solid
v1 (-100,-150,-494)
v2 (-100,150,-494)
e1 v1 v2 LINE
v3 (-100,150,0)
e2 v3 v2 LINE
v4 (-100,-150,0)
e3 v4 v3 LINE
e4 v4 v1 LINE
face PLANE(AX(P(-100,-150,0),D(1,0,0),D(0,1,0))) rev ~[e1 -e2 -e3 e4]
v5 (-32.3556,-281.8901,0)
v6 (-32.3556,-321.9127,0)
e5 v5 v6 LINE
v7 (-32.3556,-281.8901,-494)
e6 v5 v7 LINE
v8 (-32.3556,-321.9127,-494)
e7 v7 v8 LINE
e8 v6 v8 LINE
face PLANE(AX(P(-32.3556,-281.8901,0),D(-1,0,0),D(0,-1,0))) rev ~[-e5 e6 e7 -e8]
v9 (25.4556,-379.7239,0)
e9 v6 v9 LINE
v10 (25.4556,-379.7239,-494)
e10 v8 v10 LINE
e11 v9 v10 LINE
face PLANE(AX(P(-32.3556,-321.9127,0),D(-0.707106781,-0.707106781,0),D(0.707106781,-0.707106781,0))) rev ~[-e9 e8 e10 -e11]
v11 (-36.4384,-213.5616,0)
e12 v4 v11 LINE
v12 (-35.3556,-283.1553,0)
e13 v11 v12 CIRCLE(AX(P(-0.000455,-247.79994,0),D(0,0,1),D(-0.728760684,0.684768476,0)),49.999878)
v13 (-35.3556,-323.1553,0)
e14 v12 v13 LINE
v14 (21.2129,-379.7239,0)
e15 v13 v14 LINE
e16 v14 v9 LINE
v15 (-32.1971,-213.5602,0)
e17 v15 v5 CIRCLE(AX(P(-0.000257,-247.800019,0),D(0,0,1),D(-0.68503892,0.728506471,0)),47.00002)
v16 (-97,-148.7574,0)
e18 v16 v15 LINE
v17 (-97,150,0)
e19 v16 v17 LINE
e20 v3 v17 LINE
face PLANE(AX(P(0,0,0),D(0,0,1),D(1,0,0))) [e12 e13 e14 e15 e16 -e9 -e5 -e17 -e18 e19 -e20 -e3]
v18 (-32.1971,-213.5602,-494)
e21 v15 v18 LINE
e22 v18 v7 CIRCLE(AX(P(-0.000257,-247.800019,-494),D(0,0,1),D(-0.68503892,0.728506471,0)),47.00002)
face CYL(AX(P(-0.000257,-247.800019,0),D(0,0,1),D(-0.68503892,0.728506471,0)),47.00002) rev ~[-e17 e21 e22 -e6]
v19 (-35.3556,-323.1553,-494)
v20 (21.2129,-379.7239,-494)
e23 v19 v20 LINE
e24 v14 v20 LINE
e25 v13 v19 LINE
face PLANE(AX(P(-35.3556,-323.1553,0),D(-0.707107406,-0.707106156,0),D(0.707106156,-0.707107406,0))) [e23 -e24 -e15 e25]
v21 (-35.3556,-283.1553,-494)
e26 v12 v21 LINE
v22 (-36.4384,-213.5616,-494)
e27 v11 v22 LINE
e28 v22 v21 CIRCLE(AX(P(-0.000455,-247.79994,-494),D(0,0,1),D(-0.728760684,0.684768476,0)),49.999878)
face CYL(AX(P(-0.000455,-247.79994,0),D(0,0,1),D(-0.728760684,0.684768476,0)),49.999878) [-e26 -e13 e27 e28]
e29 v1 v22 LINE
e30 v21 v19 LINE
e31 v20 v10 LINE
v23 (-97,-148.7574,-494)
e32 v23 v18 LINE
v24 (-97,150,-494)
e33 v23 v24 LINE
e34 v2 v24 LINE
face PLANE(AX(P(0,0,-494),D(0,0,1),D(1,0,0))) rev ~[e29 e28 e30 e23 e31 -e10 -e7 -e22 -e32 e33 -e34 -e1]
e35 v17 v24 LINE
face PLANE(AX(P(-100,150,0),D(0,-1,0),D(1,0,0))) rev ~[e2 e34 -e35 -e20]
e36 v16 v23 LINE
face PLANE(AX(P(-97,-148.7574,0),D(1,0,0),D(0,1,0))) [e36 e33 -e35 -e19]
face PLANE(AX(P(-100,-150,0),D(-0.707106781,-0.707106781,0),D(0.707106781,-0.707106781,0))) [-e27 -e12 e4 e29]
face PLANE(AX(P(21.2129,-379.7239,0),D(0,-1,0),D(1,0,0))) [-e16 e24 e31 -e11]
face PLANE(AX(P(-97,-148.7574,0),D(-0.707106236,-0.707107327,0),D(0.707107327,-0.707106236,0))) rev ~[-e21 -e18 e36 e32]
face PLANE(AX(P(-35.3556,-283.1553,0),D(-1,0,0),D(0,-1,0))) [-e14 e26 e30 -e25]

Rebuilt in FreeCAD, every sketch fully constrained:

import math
import FreeCAD as App
import Part
import Sketcher
Q = App.Units.Quantity

doc = App.newDocument("Part")
body = doc.addObject("PartDesign::Body", "Body")

# Sketch on XY plane
sketch1 = body.newObject("Sketcher::SketchObject", "Sketch")
sketch1.AttachmentSupport = (doc.getObject("XY_Plane"), [""])
sketch1.MapMode = "FlatFace"
sketch1.addGeometry(Part.LineSegment(App.Vector(-100, 150, 0), App.Vector(-100, -150, 0)), False)
sketch1.addGeometry(Part.LineSegment(App.Vector(-100, -150, 0), App.Vector(-36.4, -213.6, 0)), False)
sketch1.addGeometry(Part.ArcOfCircle(Part.Circle(App.Vector(0, -247.8, 0), App.Vector(0, 0, 1), 50), math.radians(137), math.radians(225)), False)
sketch1.addGeometry(Part.LineSegment(App.Vector(-35.4, -283.2, 0), App.Vector(-35.4, -323.2, 0)), False)
sketch1.addGeometry(Part.LineSegment(App.Vector(-35.4, -323.2, 0), App.Vector(21.2, -379.7, 0)), False)
sketch1.addGeometry(Part.LineSegment(App.Vector(21.2, -379.7, 0), App.Vector(25.5, -379.7, 0)), False)
sketch1.addGeometry(Part.LineSegment(App.Vector(25.5, -379.7, 0), App.Vector(-32.4, -321.9, 0)), False)
sketch1.addGeometry(Part.LineSegment(App.Vector(-32.4, -321.9, 0), App.Vector(-32.4, -281.9, 0)), False)
sketch1.addGeometry(Part.ArcOfCircle(Part.Circle(App.Vector(0, -247.8, 0), App.Vector(0, 0, 1), 47), math.radians(133), math.radians(226)), False)
sketch1.addGeometry(Part.LineSegment(App.Vector(-32.2, -213.6, 0), App.Vector(-97, -148.8, 0)), False)
sketch1.addGeometry(Part.LineSegment(App.Vector(-97, -148.8, 0), App.Vector(-97, 150, 0)), False)
sketch1.addGeometry(Part.LineSegment(App.Vector(-97, 150, 0), App.Vector(-100, 150, 0)), False)
sketch1.addConstraint(Sketcher.Constraint("Coincident", 0, 2, 1, 1))
sketch1.addConstraint(Sketcher.Constraint("Coincident", 1, 2, 2, 1))
sketch1.addConstraint(Sketcher.Constraint("Coincident", 2, 2, 3, 1))
sketch1.addConstraint(Sketcher.Constraint("Coincident", 3, 2, 4, 1))
sketch1.addConstraint(Sketcher.Constraint("Coincident", 4, 2, 5, 1))
sketch1.addConstraint(Sketcher.Constraint("Coincident", 5, 2, 6, 1))
sketch1.addConstraint(Sketcher.Constraint("Coincident", 6, 2, 7, 1))
sketch1.addConstraint(Sketcher.Constraint("Coincident", 7, 2, 8, 2))
sketch1.addConstraint(Sketcher.Constraint("Coincident", 8, 1, 9, 1))
sketch1.addConstraint(Sketcher.Constraint("Coincident", 9, 2, 10, 1))
sketch1.addConstraint(Sketcher.Constraint("Coincident", 10, 2, 11, 1))
sketch1.addConstraint(Sketcher.Constraint("Coincident", 11, 2, 0, 1))
sketch1.addConstraint(Sketcher.Constraint("Vertical", 0))
sketch1.addConstraint(Sketcher.Constraint("Vertical", 3))
sketch1.addConstraint(Sketcher.Constraint("Horizontal", 5))
sketch1.addConstraint(Sketcher.Constraint("Vertical", 7))
sketch1.addConstraint(Sketcher.Constraint("Vertical", 10))
sketch1.addConstraint(Sketcher.Constraint("Horizontal", 11))
sketch1.addConstraint(Sketcher.Constraint("Coincident", 8, 3, 2, 3))
sketch1.addConstraint(Sketcher.Constraint("Parallel", 1, 4))
sketch1.addConstraint(Sketcher.Constraint("Parallel", 4, 6))
sketch1.addConstraint(Sketcher.Constraint("Parallel", 6, 9))
sketch1.addConstraint(Sketcher.Constraint("Radius", 2, 50.0))
sketch1.addConstraint(Sketcher.Constraint("DistanceX", 11, 2, 11, 1, 3.0))
sketch1.addConstraint(Sketcher.Constraint("DistanceY", 0, 2, 0, 1, 300.0))
sketch1.addConstraint(Sketcher.Constraint("DistanceY", 3, 2, 3, 1, 40.0))
sketch1.addConstraint(Sketcher.Constraint("Angle", 1, Q("-45 deg")))
sketch1.addConstraint(Sketcher.Constraint("Distance", 4, 80.0))
sketch1.addConstraint(Sketcher.Constraint("Radius", 8, 47.0))
sketch1.addConstraint(Sketcher.Constraint("DistanceX", 3, 2, 6, 2, 3.0))
sketch1.addConstraint(Sketcher.Constraint("DistanceX", 0, 2, -1, 1, 100.0))
sketch1.addConstraint(Sketcher.Constraint("DistanceY", 0, 2, -1, 1, 150.0))
sketch1.addConstraint(Sketcher.Constraint("DistanceY", 2, 3, -1, 1, 247.8))
sketch1.addConstraint(Sketcher.Constraint("DistanceX", 2, 2, -1, 1, 35.3557))
sketch1.addConstraint(Sketcher.Constraint("DistanceX", 2, 2, 2, 3, 35.3554))
sketch1.addConstraint(Sketcher.Constraint("DistanceY", 7, 2, 8, 1, 68.33))
sketch1.addConstraint(Sketcher.Constraint("DistanceX", 5, 1, 5, 2, 4.2427))
pad1 = body.newObject("PartDesign::Pad", "Pad")
pad1.Profile = sketch1
pad1.Length = 494
pad1.Reversed = True

doc.recompute()
